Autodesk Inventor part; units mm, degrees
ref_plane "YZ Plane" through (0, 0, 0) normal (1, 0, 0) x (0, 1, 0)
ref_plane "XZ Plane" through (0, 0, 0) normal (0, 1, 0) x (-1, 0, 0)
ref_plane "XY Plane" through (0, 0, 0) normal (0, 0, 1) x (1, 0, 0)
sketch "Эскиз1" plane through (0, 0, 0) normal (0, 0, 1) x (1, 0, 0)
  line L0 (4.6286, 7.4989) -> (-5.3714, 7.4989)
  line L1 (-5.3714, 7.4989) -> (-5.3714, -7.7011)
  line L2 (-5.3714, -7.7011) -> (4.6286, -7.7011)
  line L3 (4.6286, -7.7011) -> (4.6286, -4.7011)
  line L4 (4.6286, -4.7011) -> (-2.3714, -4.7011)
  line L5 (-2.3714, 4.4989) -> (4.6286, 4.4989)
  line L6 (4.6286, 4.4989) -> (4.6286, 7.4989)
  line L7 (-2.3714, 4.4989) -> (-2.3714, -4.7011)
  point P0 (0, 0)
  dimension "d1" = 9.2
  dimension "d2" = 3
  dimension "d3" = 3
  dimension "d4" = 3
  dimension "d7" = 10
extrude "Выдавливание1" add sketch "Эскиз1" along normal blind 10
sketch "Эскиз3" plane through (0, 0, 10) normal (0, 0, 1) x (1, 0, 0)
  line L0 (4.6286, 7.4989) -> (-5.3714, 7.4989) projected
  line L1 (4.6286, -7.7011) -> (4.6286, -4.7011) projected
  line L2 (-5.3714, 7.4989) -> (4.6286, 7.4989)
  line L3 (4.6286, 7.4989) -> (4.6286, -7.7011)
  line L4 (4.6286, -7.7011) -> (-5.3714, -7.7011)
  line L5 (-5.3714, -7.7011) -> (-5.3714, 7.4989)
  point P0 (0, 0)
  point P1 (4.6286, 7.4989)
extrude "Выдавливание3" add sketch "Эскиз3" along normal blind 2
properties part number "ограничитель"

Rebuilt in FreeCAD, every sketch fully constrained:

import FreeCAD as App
import Part
import Sketcher
from FreeCAD import Vector

doc = App.newDocument("Part")
body = doc.addObject("PartDesign::Body", "Body")

sketch1 = body.newObject("Sketcher::SketchObject", "Sketch")
sketch1.AttachmentSupport = (doc.getObject("XY_Plane"), [""])
sketch1.MapMode = "FlatFace"
sketch1.addGeometry([
    Part.LineSegment(Vector(4.6286, 4.4989, 0), Vector(4.6286, 7.4989, 0)),
    Part.LineSegment(Vector(4.6286, 7.4989, 0), Vector(-5.3714, 7.4989, 0)),
    Part.LineSegment(Vector(-5.3714, 7.4989, 0), Vector(-5.3714, -7.7011, 0)),
    Part.LineSegment(Vector(-5.3714, -7.7011, 0), Vector(4.6286, -7.7011, 0)),
    Part.LineSegment(Vector(4.6286, -7.7011, 0), Vector(4.6286, -4.7011, 0)),
    Part.LineSegment(Vector(4.6286, -4.7011, 0), Vector(-2.3714, -4.7011, 0)),
    Part.LineSegment(Vector(-2.3714, -4.7011, 0), Vector(-2.3714, 4.4989, 0)),
    Part.LineSegment(Vector(-2.3714, 4.4989, 0), Vector(4.6286, 4.4989, 0)),
], False)
sketch1.addConstraint([
    Sketcher.Constraint("Coincident", 0, 2, 1, 1),
    Sketcher.Constraint("Coincident", 1, 2, 2, 1),
    Sketcher.Constraint("Coincident", 2, 2, 3, 1),
    Sketcher.Constraint("Coincident", 3, 2, 4, 1),
    Sketcher.Constraint("Coincident", 4, 2, 5, 1),
    Sketcher.Constraint("Coincident", 5, 2, 6, 1),
    Sketcher.Constraint("Coincident", 6, 2, 7, 1),
    Sketcher.Constraint("Coincident", 7, 2, 0, 1),
    Sketcher.Constraint("Vertical", 0),
    Sketcher.Constraint("Horizontal", 1),
    Sketcher.Constraint("Vertical", 2),
    Sketcher.Constraint("Horizontal", 3),
    Sketcher.Constraint("Vertical", 4),
    Sketcher.Constraint("Horizontal", 5),
    Sketcher.Constraint("Vertical", 6),
    Sketcher.Constraint("Horizontal", 7),
    Sketcher.Constraint("Vertical", 0, 2, 3, 2),
    Sketcher.Constraint("Equal", 0, 4),
    Sketcher.Constraint("DistanceX", 1, 2, 1, 1, 10.0),
    Sketcher.Constraint("DistanceY", 0, 1, 0, 2, 3.0),
    Sketcher.Constraint("DistanceY", 6, 1, 6, 2, 9.2),
    Sketcher.Constraint("DistanceX", 2, 2, 5, 2, 3.0),
    Sketcher.Constraint("DistanceY", -1, 1, 0, 2, 7.499),
    Sketcher.Constraint("DistanceX", -1, 1, 0, 2, 4.6286),
])
pad1 = body.newObject("PartDesign::Pad", "Pad")
pad1.Profile = sketch1
pad1.Length = 10

sketch2 = body.newObject("Sketcher::SketchObject", "Sketch001")
sketch2.AttachmentSupport = (doc.getObject("XY_Plane"), [""])
sketch2.MapMode = "FlatFace"
sketch2.AttachmentOffset = App.Placement(Vector(0, 0, 10), App.Rotation())
sketch2.addGeometry([
    Part.LineSegment(Vector(4.6286, -7.7011, 0), Vector(4.6286, 7.4989, 0)),
    Part.LineSegment(Vector(4.6286, 7.4989, 0), Vector(-5.3714, 7.4989, 0)),
    Part.LineSegment(Vector(-5.3714, 7.4989, 0), Vector(-5.3714, -7.7011, 0)),
    Part.LineSegment(Vector(-5.3714, -7.7011, 0), Vector(4.6286, -7.7011, 0)),
], False)
sketch2.addConstraint([
    Sketcher.Constraint("Coincident", 0, 2, 1, 1),
    Sketcher.Constraint("Coincident", 1, 2, 2, 1),
    Sketcher.Constraint("Coincident", 2, 2, 3, 1),
    Sketcher.Constraint("Coincident", 3, 2, 0, 1),
    Sketcher.Constraint("Vertical", 0),
    Sketcher.Constraint("Horizontal", 1),
    Sketcher.Constraint("Vertical", 2),
    Sketcher.Constraint("Horizontal", 3),
    Sketcher.Constraint("DistanceX", 1, 2, 1, 1, 10.0),
    Sketcher.Constraint("DistanceY", 0, 1, 0, 2, 15.2),
    Sketcher.Constraint("DistanceY", -1, 1, 0, 2, 7.499),
    Sketcher.Constraint("DistanceX", -1, 1, 0, 2, 4.6286),
])
pad2 = body.newObject("PartDesign::Pad", "Pad001")
pad2.Profile = sketch2
pad2.Length = 2

doc.recompute()
